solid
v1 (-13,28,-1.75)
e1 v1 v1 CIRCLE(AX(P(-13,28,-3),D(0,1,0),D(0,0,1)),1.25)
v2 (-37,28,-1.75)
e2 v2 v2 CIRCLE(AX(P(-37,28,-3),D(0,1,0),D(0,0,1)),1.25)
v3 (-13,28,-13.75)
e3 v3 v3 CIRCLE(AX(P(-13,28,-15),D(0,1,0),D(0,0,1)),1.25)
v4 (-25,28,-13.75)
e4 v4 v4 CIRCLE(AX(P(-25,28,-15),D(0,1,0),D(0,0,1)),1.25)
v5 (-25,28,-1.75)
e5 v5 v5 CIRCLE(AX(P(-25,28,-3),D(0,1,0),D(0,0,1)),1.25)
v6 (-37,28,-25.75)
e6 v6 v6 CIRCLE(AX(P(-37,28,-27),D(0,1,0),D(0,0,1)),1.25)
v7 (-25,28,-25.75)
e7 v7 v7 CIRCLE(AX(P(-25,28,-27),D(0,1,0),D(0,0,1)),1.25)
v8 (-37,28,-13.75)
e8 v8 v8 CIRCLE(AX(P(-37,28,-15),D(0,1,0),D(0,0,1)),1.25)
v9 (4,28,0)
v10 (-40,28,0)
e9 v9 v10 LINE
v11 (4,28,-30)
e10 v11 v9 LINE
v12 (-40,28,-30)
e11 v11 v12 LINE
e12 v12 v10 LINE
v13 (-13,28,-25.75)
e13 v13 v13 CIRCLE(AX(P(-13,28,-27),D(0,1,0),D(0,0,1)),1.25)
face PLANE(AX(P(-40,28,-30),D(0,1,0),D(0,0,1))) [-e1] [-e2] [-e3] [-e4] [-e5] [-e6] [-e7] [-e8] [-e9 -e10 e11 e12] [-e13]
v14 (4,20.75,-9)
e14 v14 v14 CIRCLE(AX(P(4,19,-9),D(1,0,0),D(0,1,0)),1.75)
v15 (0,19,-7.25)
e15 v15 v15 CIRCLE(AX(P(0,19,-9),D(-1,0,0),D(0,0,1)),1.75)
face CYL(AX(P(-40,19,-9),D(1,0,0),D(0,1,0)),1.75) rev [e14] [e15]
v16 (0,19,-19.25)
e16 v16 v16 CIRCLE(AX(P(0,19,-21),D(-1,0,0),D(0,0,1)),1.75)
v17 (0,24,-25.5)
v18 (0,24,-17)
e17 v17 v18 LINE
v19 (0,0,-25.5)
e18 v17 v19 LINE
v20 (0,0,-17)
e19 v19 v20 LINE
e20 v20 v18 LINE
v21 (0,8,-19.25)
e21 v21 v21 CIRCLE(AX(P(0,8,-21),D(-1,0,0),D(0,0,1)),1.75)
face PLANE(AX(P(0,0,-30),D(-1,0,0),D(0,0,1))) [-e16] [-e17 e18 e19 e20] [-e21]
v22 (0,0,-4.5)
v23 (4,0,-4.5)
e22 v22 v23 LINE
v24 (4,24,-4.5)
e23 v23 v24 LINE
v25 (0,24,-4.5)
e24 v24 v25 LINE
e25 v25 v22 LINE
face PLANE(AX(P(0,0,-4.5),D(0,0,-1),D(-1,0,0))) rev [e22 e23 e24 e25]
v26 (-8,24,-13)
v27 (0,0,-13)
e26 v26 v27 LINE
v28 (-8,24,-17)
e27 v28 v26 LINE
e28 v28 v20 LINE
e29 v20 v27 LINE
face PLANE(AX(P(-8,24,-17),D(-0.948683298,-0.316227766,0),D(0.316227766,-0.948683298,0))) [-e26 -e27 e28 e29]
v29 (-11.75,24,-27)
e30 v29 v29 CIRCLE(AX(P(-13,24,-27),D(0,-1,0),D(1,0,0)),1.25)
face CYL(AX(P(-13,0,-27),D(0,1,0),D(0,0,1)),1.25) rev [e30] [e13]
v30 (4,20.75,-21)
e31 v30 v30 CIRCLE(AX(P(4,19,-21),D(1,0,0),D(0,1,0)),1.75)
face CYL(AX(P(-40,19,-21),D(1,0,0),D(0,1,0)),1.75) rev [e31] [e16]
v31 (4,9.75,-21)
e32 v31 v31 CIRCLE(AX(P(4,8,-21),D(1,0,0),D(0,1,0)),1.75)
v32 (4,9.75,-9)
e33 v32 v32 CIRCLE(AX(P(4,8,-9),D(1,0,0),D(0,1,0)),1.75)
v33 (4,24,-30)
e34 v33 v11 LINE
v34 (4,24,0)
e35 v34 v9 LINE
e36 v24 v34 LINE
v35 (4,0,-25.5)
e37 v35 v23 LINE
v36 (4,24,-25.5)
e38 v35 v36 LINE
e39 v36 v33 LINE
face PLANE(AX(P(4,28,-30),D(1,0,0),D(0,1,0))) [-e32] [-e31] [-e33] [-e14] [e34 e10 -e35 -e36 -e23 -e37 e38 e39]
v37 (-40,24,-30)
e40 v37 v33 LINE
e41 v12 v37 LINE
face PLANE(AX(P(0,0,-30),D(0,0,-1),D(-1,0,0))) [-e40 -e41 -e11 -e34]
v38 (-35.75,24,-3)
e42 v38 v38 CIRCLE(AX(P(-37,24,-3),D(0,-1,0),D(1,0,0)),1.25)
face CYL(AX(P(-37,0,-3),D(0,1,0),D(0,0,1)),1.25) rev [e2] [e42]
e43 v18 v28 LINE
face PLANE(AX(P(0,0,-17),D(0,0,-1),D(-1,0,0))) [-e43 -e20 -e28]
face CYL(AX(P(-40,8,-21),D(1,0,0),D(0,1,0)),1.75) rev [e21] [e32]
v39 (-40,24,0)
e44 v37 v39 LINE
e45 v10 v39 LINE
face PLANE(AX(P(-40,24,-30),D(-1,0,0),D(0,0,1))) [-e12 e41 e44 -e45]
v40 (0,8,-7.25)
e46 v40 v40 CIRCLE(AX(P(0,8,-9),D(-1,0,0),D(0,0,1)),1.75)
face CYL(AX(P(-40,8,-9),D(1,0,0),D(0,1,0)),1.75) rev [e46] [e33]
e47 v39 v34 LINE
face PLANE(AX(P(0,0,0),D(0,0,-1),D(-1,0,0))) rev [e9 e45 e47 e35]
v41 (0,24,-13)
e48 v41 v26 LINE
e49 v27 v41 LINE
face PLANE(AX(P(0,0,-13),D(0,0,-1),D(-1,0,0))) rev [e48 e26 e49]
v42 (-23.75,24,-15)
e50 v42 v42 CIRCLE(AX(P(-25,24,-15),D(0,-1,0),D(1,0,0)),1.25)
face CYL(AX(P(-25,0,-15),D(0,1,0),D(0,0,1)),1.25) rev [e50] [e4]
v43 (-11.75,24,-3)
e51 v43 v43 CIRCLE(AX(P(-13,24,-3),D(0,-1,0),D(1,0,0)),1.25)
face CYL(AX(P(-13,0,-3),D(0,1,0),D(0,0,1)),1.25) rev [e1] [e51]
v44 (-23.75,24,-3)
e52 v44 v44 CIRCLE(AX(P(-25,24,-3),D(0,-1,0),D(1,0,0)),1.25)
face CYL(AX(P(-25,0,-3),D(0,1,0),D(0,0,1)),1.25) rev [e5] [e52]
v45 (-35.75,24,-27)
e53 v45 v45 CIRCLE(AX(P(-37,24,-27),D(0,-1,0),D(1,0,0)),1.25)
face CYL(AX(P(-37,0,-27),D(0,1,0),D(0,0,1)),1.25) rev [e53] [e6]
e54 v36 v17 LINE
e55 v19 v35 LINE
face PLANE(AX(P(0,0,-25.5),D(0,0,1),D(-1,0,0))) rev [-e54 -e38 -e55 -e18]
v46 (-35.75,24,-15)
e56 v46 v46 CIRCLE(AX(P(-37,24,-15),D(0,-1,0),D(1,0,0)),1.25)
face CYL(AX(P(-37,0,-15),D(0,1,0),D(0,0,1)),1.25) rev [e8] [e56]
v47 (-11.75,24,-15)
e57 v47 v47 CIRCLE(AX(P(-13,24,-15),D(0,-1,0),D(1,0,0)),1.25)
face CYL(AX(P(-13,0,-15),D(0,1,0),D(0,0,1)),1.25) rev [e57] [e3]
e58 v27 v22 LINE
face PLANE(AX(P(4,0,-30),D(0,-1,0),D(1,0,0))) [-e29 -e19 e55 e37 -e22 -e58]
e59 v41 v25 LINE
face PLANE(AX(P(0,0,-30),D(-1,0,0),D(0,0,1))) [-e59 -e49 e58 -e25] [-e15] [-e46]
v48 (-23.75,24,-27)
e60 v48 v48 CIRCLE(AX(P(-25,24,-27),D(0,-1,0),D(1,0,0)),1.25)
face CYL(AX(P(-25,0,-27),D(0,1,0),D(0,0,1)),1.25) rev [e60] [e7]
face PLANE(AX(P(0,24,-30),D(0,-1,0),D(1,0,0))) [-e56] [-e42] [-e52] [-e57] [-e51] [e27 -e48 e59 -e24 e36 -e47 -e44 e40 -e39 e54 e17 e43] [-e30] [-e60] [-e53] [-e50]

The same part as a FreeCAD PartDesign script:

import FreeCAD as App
import Part
import Sketcher
Q = App.Units.Quantity

doc = App.newDocument("Part")
body = doc.addObject("PartDesign::Body", "Body")

sketch1 = body.newObject("Sketcher::SketchObject", "Sketch")
sketch1.AttachmentSupport = (doc.getObject("XY_Plane"), [""])
sketch1.MapMode = "FlatFace"
sketch1.addGeometry([
    Part.LineSegment(App.Vector(0, 24, 0), App.Vector(0, 0, 0)),
    Part.LineSegment(App.Vector(0, 0, 0), App.Vector(4, 0, 0)),
    Part.LineSegment(App.Vector(4, 0, 0), App.Vector(4, 28, 0)),
    Part.LineSegment(App.Vector(4, 28, 0), App.Vector(-40, 28, 0)),
    Part.LineSegment(App.Vector(-40, 28, 0), App.Vector(-40, 24, 0)),
    Part.LineSegment(App.Vector(-40, 24, 0), App.Vector(0, 24, 0)),
], False)
sketch1.addConstraint([
    Sketcher.Constraint("Coincident", 0, 2, 1, 1),
    Sketcher.Constraint("Coincident", 1, 2, 2, 1),
    Sketcher.Constraint("Coincident", 2, 2, 3, 1),
    Sketcher.Constraint("Coincident", 3, 2, 4, 1),
    Sketcher.Constraint("Coincident", 4, 2, 5, 1),
    Sketcher.Constraint("Coincident", 5, 2, 0, 1),
    Sketcher.Constraint("Vertical", 0),
    Sketcher.Constraint("Horizontal", 1),
    Sketcher.Constraint("Vertical", 2),
    Sketcher.Constraint("Horizontal", 3),
    Sketcher.Constraint("Vertical", 4),
    Sketcher.Constraint("Horizontal", 5),
    Sketcher.Constraint("Coincident", 0, 2, -1, 1),
    Sketcher.Constraint("Equal", 1, 4),
    Sketcher.Constraint("DistanceX", 1, 1, 1, 2, Q("4 mm")),
    Sketcher.Constraint("DistanceX", 3, 2, 3, 1, Q("44 mm")),
    Sketcher.Constraint("DistanceY", 0, 2, 0, 1, Q("24 mm")),
])
pad1 = body.newObject("PartDesign::Pad", "Pad")
pad1.Profile = sketch1
pad1.Length = 30
pad1.Reversed = True

sketch2 = body.newObject("Sketcher::SketchObject", "Sketch001")
sketch2.AttachmentSupport = (doc.getObject("XZ_Plane"), [""])
sketch2.MapMode = "FlatFace"
sketch2.AttachmentOffset = App.Placement(App.Vector(0, 0, -28), App.Rotation())
sketch2.addGeometry([
    Part.Circle(App.Vector(-37, -3, 0), App.Vector(0, 0, 1), 1.2),
    Part.Circle(App.Vector(-13, -3, 0), App.Vector(0, 0, 1), 1.2),
    Part.Circle(App.Vector(-37, -27, 0), App.Vector(0, 0, 1), 1.2),
    Part.Circle(App.Vector(-37, -15, 0), App.Vector(0, 0, 1), 1.2),
    Part.Circle(App.Vector(-25, -27, 0), App.Vector(0, 0, 1), 1.2),
    Part.Circle(App.Vector(-13, -27, 0), App.Vector(0, 0, 1), 1.2),
    Part.Circle(App.Vector(-13, -15, 0), App.Vector(0, 0, 1), 1.2),
    Part.Circle(App.Vector(-25, -3, 0), App.Vector(0, 0, 1), 1.2),
    Part.Circle(App.Vector(-25, -15, 0), App.Vector(0, 0, 1), 1.2),
], False)
sketch2.addConstraint([
    Sketcher.Constraint("Equal", 0, 1),
    Sketcher.Constraint("Equal", 1, 2),
    Sketcher.Constraint("Equal", 2, 3),
    Sketcher.Constraint("Equal", 3, 4),
    Sketcher.Constraint("Equal", 4, 5),
    Sketcher.Constraint("Equal", 5, 6),
    Sketcher.Constraint("Equal", 6, 7),
    Sketcher.Constraint("Equal", 7, 8),
    Sketcher.Constraint("Horizontal", 0, 3, 1, 3),
    Sketcher.Constraint("Horizontal", 2, 3, 4, 3),
    Sketcher.Constraint("Horizontal", 4, 3, 5, 3),
    Sketcher.Constraint("Horizontal", 3, 3, 6, 3),
    Sketcher.Constraint("Horizontal", 1, 3, 7, 3),
    Sketcher.Constraint("Horizontal", 6, 3, 8, 3),
    Sketcher.Constraint("Vertical", 0, 3, 2, 3),
    Sketcher.Constraint("Vertical", 2, 3, 3, 3),
    Sketcher.Constraint("Vertical", 1, 3, 5, 3),
    Sketcher.Constraint("Vertical", 5, 3, 6, 3),
    Sketcher.Constraint("Vertical", 4, 3, 7, 3),
    Sketcher.Constraint("Vertical", 7, 3, 8, 3),
    Sketcher.Constraint("Diameter", 0, Q("2.5 mm")),
    Sketcher.Constraint("DistanceX", 0, 3, -1, 1, Q("37 mm")),
    Sketcher.Constraint("DistanceY", 0, 3, -1, 1, Q("3 mm")),
    Sketcher.Constraint("DistanceX", 1, 3, -1, 1, Q("13 mm")),
    Sketcher.Constraint("DistanceY", 2, 3, -1, 1, Q("27 mm")),
    Sketcher.Constraint("DistanceY", 3, 3, -1, 1, Q("15 mm")),
    Sketcher.Constraint("DistanceX", 4, 3, -1, 1, Q("25 mm")),
])
pocket1 = body.newObject("PartDesign::Pocket", "Pocket")
pocket1.Profile = sketch2
pocket1.Type = "ThroughAll"
pocket1.Reversed = True

sketch3 = body.newObject("Sketcher::SketchObject", "Sketch002")
sketch3.AttachmentSupport = (doc.getObject("XY_Plane"), [""])
sketch3.MapMode = "FlatFace"
sketch3.addGeometry([
    Part.LineSegment(App.Vector(0, 24, 0), App.Vector(0, 0, 0)),
    Part.LineSegment(App.Vector(0, 0, 0), App.Vector(4, 0, 0)),
    Part.LineSegment(App.Vector(4, 0, 0), App.Vector(4, 24, 0)),
    Part.LineSegment(App.Vector(4, 24, 0), App.Vector(0, 24, 0)),
], False)
sketch3.addConstraint([
    Sketcher.Constraint("Coincident", 0, 2, 1, 1),
    Sketcher.Constraint("Coincident", 1, 2, 2, 1),
    Sketcher.Constraint("Coincident", 2, 2, 3, 1),
    Sketcher.Constraint("Coincident", 3, 2, 0, 1),
    Sketcher.Constraint("Vertical", 0),
    Sketcher.Constraint("Horizontal", 1),
    Sketcher.Constraint("Vertical", 2),
    Sketcher.Constraint("Horizontal", 3),
    Sketcher.Constraint("Coincident", 0, 2, -1, 1),
    Sketcher.Constraint("DistanceX", 1, 1, 1, 2, Q("4 mm")),
    Sketcher.Constraint("DistanceY", 0, 2, 0, 1, Q("24 mm")),
])
pocket2 = body.newObject("PartDesign::Pocket", "Pocket001")
pocket2.Profile = sketch3
pocket2.Length = 4.5
doc.recompute()

datumplane = body.newObject("PartDesign::Plane", "DatumPlane")
datumplane.AttachmentSupport = (doc.getObject("XY_Plane"), [""])
datumplane.MapMode = "FlatFace"
datumplane.AttachmentOffset = App.Placement(App.Vector(0, 0, -15), App.Rotation())
mirrored = body.newObject("PartDesign::Mirrored", "Mirrored")
mirrored.Originals = [pocket2]
mirrored.MirrorPlane = (datumplane, [""])
body.Tip = mirrored

sketch4 = body.newObject("Sketcher::SketchObject", "Sketch003")
sketch4.AttachmentSupport = (doc.getObject("YZ_Plane"), [""])
sketch4.MapMode = "FlatFace"
sketch4.AttachmentOffset = App.Placement(App.Vector(0, 0, 4), App.Rotation())
sketch4.addGeometry([
    Part.Circle(App.Vector(19, -9, 0), App.Vector(0, 0, 1), 1.8),
    Part.Circle(App.Vector(19, -21, 0), App.Vector(0, 0, 1), 1.8),
    Part.Circle(App.Vector(8, -21, 0), App.Vector(0, 0, 1), 1.8),
    Part.Circle(App.Vector(8, -9, 0), App.Vector(0, 0, 1), 1.8),
], False)
sketch4.addConstraint([
    Sketcher.Constraint("Equal", 0, 1),
    Sketcher.Constraint("Equal", 1, 2),
    Sketcher.Constraint("Equal", 2, 3),
    Sketcher.Constraint("Horizontal", 1, 3, 2, 3),
    Sketcher.Constraint("Horizontal", 0, 3, 3, 3),
    Sketcher.Constraint("Vertical", 0, 3, 1, 3),
    Sketcher.Constraint("Vertical", 2, 3, 3, 3),
    Sketcher.Constraint("Diameter", 0, Q("3.5 mm")),
    Sketcher.Constraint("DistanceX", -1, 1, 0, 3, Q("19 mm")),
    Sketcher.Constraint("DistanceY", 0, 3, -1, 1, Q("9 mm")),
    Sketcher.Constraint("DistanceY", 1, 3, -1, 1, Q("21 mm")),
    Sketcher.Constraint("DistanceX", -1, 1, 2, 3, Q("8 mm")),
])
pocket3 = body.newObject("PartDesign::Pocket", "Pocket002")
pocket3.Profile = sketch4
pocket3.Type = "ThroughAll"

sketch5 = body.newObject("Sketcher::SketchObject", "Sketch004")
sketch5.AttachmentSupport = (doc.getObject("XY_Plane"), [""])
sketch5.MapMode = "FlatFace"
sketch5.AttachmentOffset = App.Placement(App.Vector(0, 0, -15), App.Rotation())
sketch5.addGeometry([
    Part.LineSegment(App.Vector(0, 0, 0), App.Vector(0, 24, 0)),
    Part.LineSegment(App.Vector(0, 24, 0), App.Vector(-8, 24, 0)),
    Part.LineSegment(App.Vector(-8, 24, 0), App.Vector(0, 0, 0)),
], False)
sketch5.addConstraint([
    Sketcher.Constraint("Coincident", 0, 2, 1, 1),
    Sketcher.Constraint("Coincident", 1, 2, 2, 1),
    Sketcher.Constraint("Coincident", 2, 2, 0, 1),
    Sketcher.Constraint("Vertical", 0),
    Sketcher.Constraint("Horizontal", 1),
    Sketcher.Constraint("Coincident", 2, 2, -1, 1),
    Sketcher.Constraint("DistanceX", 1, 2, 1, 1, Q("8 mm")),
    Sketcher.Constraint("DistanceY", 0, 1, 0, 2, Q("24 mm")),
])
pad2 = body.newObject("PartDesign::Pad", "Pad001")
pad2.Profile = sketch5
pad2.Type = "TwoLengths"
pad2.Length = 2
pad2.Length2 = 2

doc.recompute()
